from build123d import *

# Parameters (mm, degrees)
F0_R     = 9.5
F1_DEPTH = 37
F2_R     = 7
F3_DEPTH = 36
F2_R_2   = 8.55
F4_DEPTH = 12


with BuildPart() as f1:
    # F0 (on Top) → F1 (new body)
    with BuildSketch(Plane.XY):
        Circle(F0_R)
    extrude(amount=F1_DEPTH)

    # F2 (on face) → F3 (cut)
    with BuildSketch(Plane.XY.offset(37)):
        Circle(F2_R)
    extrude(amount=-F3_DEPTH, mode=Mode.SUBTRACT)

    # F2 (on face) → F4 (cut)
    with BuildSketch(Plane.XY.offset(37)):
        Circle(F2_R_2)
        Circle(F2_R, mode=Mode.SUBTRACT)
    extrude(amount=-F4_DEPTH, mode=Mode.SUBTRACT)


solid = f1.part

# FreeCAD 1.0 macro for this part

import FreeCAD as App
import Part
import Sketcher
from FreeCAD import Vector

doc = App.newDocument("Part")
body = doc.addObject("PartDesign::Body", "Body")

# Sketch on XY plane
sketch1 = body.newObject("Sketcher::SketchObject", "Sketch")
sketch1.AttachmentSupport = (doc.getObject("XY_Plane"), [""])
sketch1.MapMode = "FlatFace"
sketch1.addGeometry(Part.Circle(Vector(0, 0, 0), Vector(0, 0, 1), 9.5), False)
sketch1.addConstraint(Sketcher.Constraint("Coincident", 0, 3, -1, 1))
sketch1.addConstraint(Sketcher.Constraint("Diameter", 0, 19.0))
pad1 = body.newObject("PartDesign::Pad", "Pad")
pad1.Profile = sketch1
pad1.Length = 37

# Sketch on XY plane
sketch2 = body.newObject("Sketcher::SketchObject", "Sketch001")
sketch2.AttachmentSupport = (doc.getObject("XY_Plane"), [""])
sketch2.MapMode = "FlatFace"
sketch2.AttachmentOffset = App.Placement(Vector(0, 0, 37), App.Rotation())
sketch2.addGeometry(Part.Circle(Vector(0, 0, 0), Vector(0, 0, 1), 7), False)
sketch2.addConstraint(Sketcher.Constraint("Coincident", 0, 3, -1, 1))
sketch2.addConstraint(Sketcher.Constraint("Diameter", 0, 14.0))
pocket1 = body.newObject("PartDesign::Pocket", "Pocket")
pocket1.Profile = sketch2
pocket1.Length = 36

# Sketch on XY plane
sketch3 = body.newObject("Sketcher::SketchObject", "Sketch002")
sketch3.AttachmentSupport = (doc.getObject("XY_Plane"), [""])
sketch3.MapMode = "FlatFace"
sketch3.AttachmentOffset = App.Placement(Vector(0, 0, 37), App.Rotation())
sketch3.addGeometry(Part.Circle(Vector(0, 0, 0), Vector(0, 0, 1), 8.55), False)
sketch3.addGeometry(Part.Circle(Vector(0, 0, 0), Vector(0, 0, 1), 7), False)
sketch3.addConstraint(Sketcher.Constraint("Coincident", 0, 3, -1, 1))
sketch3.addConstraint(Sketcher.Constraint("Coincident", 1, 3, -1, 1))
sketch3.addConstraint(Sketcher.Constraint("Diameter", 1, 14.0))
sketch3.addConstraint(Sketcher.Constraint("Diameter", 0, 17.1))
pocket2 = body.newObject("PartDesign::Pocket", "Pocket001")
pocket2.Profile = sketch3
pocket2.Length = 12

doc.recompute()
